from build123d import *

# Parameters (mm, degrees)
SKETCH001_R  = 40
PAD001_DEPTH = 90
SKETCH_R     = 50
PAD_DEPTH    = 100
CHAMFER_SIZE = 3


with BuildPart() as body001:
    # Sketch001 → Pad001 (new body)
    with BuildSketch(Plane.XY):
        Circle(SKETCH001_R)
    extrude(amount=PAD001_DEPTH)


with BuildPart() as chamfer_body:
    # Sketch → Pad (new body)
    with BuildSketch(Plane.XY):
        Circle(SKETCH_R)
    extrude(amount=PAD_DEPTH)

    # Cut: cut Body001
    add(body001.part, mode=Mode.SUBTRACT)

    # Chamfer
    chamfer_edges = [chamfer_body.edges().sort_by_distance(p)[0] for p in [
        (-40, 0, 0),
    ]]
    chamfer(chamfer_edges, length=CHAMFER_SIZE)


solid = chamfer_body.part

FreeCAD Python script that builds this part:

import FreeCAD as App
import Part
import Sketcher
Q = App.Units.Quantity


def edges_at(feature, points):
    """Names of the edges that pass closest to the given points."""
    edges = feature.Shape.Edges
    near = lambda p: min(range(len(edges)), key=lambda i: edges[i].distToShape(Part.Vertex(*p))[0])
    return sorted({f"Edge{near(p) + 1}" for p in points})

doc = App.newDocument("Part")
params = doc.addObject("Spreadsheet::Sheet", "Params")
for row, (alias, value) in enumerate([
    ("sketch1_diameter", "80 mm"),
    ("pad1_length", "90 mm"),
    ("sketch2_diameter", "100 mm"),
    ("pad2_length", "100 mm"),
    ("chamfer_size", "3 mm"),
], start=1):
    params.set(f"A{row}", alias)
    params.set(f"B{row}", "=" + value)
    params.setAlias(f"B{row}", alias)

body = doc.addObject("PartDesign::Body", "Body")

# Sketch on XY plane
sketch1 = body.newObject("Sketcher::SketchObject", "Sketch")
sketch1.AttachmentSupport = (doc.getObject("XY_Plane"), [""])
sketch1.MapMode = "FlatFace"
sketch1.addGeometry(Part.Circle(App.Vector(0, 0, 0), App.Vector(0, 0, 1), 40), False)
sketch1.addConstraint([
    Sketcher.Constraint("Coincident", 0, 3, -1, 1),
    Sketcher.Constraint("Diameter", 0, Q("80 mm")),
])
sketch1.setExpression("Constraints[1]", "Params.sketch1_diameter")
pad1 = body.newObject("PartDesign::Pad", "Pad")
pad1.Profile = sketch1
pad1.setExpression("Length", "Params.pad1_length")
body2 = doc.addObject("PartDesign::Body", "Body001")

# Sketch on XY plane
sketch2 = body2.newObject("Sketcher::SketchObject", "Sketch001")
sketch2.AttachmentSupport = (doc.getObject("XY_Plane001"), [""])
sketch2.MapMode = "FlatFace"
sketch2.addGeometry(Part.Circle(App.Vector(0, 0, 0), App.Vector(0, 0, 1), 50), False)
sketch2.addConstraint([
    Sketcher.Constraint("Coincident", 0, 3, -1, 1),
    Sketcher.Constraint("Diameter", 0, Q("100 mm")),
])
sketch2.setExpression("Constraints[1]", "Params.sketch2_diameter")
pad2 = body2.newObject("PartDesign::Pad", "Pad001")
pad2.Profile = sketch2
pad2.setExpression("Length", "Params.pad2_length")
doc.recompute()

boolean = body2.newObject("PartDesign::Boolean", "Boolean")
boolean.Type = "Cut"
boolean.addObjects([body])
doc.recompute()

chamfer = body2.newObject("PartDesign::Chamfer", "Chamfer")
chamfer.Base = (boolean, edges_at(boolean, [(-40, 0, 0)]))
chamfer.setExpression("Size", "Params.chamfer_size")

doc.recompute()
